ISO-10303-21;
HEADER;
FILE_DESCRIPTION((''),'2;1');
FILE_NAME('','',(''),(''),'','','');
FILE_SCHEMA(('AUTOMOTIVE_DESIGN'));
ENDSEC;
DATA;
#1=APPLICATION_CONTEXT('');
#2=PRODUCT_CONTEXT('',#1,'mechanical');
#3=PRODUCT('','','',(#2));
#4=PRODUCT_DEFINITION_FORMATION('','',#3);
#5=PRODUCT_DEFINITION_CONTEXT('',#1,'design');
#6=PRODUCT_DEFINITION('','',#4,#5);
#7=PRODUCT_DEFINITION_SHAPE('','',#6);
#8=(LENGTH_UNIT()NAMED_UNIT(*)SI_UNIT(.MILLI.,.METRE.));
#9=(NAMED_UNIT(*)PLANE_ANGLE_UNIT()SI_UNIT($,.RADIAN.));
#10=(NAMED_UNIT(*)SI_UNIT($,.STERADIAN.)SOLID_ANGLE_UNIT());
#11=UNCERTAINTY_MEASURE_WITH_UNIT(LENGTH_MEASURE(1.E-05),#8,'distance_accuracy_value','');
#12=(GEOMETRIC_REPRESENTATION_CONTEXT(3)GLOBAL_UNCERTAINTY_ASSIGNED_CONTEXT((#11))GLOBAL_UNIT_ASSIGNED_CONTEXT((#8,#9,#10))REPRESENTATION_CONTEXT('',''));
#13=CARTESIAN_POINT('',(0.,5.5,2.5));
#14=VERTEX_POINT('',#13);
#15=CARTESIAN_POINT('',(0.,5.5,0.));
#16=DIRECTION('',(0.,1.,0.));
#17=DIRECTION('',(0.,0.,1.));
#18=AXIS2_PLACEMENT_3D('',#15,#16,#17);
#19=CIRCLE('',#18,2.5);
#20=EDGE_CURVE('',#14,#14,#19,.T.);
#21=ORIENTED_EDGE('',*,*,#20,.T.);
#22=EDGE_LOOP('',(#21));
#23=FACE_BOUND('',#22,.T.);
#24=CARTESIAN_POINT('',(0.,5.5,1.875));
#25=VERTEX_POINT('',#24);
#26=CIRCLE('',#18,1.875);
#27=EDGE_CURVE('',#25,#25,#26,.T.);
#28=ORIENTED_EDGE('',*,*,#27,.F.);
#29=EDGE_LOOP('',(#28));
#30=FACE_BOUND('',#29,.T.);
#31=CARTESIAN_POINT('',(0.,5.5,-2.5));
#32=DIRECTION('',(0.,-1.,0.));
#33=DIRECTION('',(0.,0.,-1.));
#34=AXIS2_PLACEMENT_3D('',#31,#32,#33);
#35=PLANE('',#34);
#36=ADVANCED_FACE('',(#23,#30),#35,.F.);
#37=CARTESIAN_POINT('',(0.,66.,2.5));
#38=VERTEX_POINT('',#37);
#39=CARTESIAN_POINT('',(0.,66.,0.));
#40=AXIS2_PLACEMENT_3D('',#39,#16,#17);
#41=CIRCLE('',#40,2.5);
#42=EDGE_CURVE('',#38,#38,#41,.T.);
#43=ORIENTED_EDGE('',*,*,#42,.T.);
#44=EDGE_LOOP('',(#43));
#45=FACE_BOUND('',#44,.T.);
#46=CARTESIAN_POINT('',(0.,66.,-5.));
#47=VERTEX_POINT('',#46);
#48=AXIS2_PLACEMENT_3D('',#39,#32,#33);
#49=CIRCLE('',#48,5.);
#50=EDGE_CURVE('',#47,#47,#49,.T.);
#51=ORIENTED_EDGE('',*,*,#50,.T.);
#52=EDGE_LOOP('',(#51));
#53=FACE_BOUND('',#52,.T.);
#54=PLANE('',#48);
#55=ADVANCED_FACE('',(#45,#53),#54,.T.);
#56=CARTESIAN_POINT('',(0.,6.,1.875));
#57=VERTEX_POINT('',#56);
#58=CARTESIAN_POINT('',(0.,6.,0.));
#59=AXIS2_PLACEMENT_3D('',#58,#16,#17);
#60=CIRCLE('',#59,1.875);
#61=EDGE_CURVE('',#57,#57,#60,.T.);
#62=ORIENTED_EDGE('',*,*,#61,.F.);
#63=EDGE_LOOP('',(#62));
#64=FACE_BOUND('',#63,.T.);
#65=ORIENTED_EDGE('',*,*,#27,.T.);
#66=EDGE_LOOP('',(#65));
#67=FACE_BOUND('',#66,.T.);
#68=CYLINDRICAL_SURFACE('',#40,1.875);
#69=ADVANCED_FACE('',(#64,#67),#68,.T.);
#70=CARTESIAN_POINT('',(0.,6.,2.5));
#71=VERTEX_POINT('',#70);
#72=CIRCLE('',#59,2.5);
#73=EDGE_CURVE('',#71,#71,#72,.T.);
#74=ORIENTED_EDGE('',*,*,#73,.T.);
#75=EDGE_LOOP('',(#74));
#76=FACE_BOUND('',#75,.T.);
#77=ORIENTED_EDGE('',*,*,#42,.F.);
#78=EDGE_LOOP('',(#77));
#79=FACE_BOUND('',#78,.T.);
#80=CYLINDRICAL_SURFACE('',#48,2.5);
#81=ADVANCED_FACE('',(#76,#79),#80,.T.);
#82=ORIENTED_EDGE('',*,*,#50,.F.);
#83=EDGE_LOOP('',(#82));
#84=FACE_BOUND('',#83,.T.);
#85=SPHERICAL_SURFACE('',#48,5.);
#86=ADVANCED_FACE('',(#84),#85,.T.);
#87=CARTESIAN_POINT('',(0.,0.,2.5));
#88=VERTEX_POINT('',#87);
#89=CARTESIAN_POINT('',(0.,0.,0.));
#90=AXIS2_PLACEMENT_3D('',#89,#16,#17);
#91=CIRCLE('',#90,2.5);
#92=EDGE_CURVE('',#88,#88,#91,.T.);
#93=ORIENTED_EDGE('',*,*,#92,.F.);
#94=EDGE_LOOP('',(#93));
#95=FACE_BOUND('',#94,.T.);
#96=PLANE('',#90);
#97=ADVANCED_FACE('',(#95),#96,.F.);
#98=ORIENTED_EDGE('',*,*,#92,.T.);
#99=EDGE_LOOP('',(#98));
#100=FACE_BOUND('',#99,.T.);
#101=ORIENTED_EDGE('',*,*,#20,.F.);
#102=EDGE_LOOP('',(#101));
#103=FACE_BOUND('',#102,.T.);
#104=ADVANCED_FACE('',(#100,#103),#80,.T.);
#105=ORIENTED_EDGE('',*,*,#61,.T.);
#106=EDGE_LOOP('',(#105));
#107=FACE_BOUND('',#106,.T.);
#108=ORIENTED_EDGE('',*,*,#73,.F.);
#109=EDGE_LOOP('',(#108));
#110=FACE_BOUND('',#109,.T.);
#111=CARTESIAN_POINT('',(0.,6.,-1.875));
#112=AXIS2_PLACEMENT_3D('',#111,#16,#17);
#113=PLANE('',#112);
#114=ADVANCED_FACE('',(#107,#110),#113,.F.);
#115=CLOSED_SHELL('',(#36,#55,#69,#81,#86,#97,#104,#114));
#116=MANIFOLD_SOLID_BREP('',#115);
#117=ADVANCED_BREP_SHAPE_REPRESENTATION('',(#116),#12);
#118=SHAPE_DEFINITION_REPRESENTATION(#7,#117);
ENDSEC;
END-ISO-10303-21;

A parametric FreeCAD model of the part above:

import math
import FreeCAD as App
import Part
import Sketcher
from FreeCAD import Vector

doc = App.newDocument("Part")
body = doc.addObject("PartDesign::Body", "Body")

# Sketch on XZ plane
sketch1 = body.newObject("Sketcher::SketchObject", "Sketch")
sketch1.AttachmentSupport = (doc.getObject("XZ_Plane"), [""])
sketch1.MapMode = "FlatFace"
sketch1.addGeometry(Part.Circle(Vector(0, 0, 0), Vector(0, 0, 1), 2.5), False)
sketch1.addConstraint([
    Sketcher.Constraint("Coincident", 0, 3, -1, 1),
    Sketcher.Constraint("Diameter", 0, 5.0),
])
pad1 = body.newObject("PartDesign::Pad", "Pad")
pad1.Profile = sketch1
pad1.Length = 66
pad1.Reversed = True

# Sketch on YZ plane
sketch2 = body.newObject("Sketcher::SketchObject", "Sketch001")
sketch2.AttachmentSupport = (doc.getObject("YZ_Plane"), [""])
sketch2.MapMode = "FlatFace"
sketch2.addGeometry([
    Part.LineSegment(Vector(71, 0, 0), Vector(66, 0, 0)),
    Part.LineSegment(Vector(66, 0, 0), Vector(66, -5, 0)),
    Part.ArcOfCircle(Part.Circle(Vector(66, 0, 0), Vector(0, 0, 1), 5), math.radians(-90), math.radians(0)),
], False)
sketch2.addConstraint([
    Sketcher.Constraint("Coincident", 0, 2, 1, 1),
    Sketcher.Constraint("Coincident", 1, 2, 2, 1),
    Sketcher.Constraint("Coincident", 2, 2, 0, 1),
    Sketcher.Constraint("Horizontal", 0),
    Sketcher.Constraint("Vertical", 1),
    Sketcher.Constraint("Coincident", 0, 2, 2, 3),
    Sketcher.Constraint("PointOnObject", 2, 3, -1),
    Sketcher.Constraint("Radius", 2, 5.0),
    Sketcher.Constraint("DistanceX", -1, 1, 2, 3, 66.0),
])
revolution = body.newObject("PartDesign::Revolution", "Revolution")
revolution.Profile = sketch2
revolution.ReferenceAxis = (sketch2, ["H_Axis"])
revolution.Angle = 360

# Sketch on YZ plane
sketch3 = body.newObject("Sketcher::SketchObject", "Sketch002")
sketch3.AttachmentSupport = (doc.getObject("YZ_Plane"), [""])
sketch3.MapMode = "FlatFace"
sketch3.addGeometry([
    Part.LineSegment(Vector(5.5, -1.875, 0), Vector(6, -1.875, 0)),
    Part.LineSegment(Vector(6, -1.875, 0), Vector(6, -2.5, 0)),
    Part.LineSegment(Vector(6, -2.5, 0), Vector(5.5, -2.5, 0)),
    Part.LineSegment(Vector(5.5, -2.5, 0), Vector(5.5, -1.875, 0)),
], False)
sketch3.addConstraint([
    Sketcher.Constraint("Coincident", 0, 2, 1, 1),
    Sketcher.Constraint("Coincident", 1, 2, 2, 1),
    Sketcher.Constraint("Coincident", 2, 2, 3, 1),
    Sketcher.Constraint("Coincident", 3, 2, 0, 1),
    Sketcher.Constraint("Horizontal", 0),
    Sketcher.Constraint("Vertical", 1),
    Sketcher.Constraint("Horizontal", 2),
    Sketcher.Constraint("Vertical", 3),
    Sketcher.Constraint("DistanceX", 0, 1, 0, 2, 0.5),
    Sketcher.Constraint("DistanceX", -1, 1, 0, 2, 6.0),
    Sketcher.Constraint("DistanceY", 1, 2, -1, 1, 2.5),
    Sketcher.Constraint("DistanceY", 1, 2, 1, 1, 0.625),
])
groove = body.newObject("PartDesign::Groove", "Groove")
groove.Profile = sketch3
groove.ReferenceAxis = (sketch3, ["H_Axis"])
groove.Angle = 360

doc.recompute()
